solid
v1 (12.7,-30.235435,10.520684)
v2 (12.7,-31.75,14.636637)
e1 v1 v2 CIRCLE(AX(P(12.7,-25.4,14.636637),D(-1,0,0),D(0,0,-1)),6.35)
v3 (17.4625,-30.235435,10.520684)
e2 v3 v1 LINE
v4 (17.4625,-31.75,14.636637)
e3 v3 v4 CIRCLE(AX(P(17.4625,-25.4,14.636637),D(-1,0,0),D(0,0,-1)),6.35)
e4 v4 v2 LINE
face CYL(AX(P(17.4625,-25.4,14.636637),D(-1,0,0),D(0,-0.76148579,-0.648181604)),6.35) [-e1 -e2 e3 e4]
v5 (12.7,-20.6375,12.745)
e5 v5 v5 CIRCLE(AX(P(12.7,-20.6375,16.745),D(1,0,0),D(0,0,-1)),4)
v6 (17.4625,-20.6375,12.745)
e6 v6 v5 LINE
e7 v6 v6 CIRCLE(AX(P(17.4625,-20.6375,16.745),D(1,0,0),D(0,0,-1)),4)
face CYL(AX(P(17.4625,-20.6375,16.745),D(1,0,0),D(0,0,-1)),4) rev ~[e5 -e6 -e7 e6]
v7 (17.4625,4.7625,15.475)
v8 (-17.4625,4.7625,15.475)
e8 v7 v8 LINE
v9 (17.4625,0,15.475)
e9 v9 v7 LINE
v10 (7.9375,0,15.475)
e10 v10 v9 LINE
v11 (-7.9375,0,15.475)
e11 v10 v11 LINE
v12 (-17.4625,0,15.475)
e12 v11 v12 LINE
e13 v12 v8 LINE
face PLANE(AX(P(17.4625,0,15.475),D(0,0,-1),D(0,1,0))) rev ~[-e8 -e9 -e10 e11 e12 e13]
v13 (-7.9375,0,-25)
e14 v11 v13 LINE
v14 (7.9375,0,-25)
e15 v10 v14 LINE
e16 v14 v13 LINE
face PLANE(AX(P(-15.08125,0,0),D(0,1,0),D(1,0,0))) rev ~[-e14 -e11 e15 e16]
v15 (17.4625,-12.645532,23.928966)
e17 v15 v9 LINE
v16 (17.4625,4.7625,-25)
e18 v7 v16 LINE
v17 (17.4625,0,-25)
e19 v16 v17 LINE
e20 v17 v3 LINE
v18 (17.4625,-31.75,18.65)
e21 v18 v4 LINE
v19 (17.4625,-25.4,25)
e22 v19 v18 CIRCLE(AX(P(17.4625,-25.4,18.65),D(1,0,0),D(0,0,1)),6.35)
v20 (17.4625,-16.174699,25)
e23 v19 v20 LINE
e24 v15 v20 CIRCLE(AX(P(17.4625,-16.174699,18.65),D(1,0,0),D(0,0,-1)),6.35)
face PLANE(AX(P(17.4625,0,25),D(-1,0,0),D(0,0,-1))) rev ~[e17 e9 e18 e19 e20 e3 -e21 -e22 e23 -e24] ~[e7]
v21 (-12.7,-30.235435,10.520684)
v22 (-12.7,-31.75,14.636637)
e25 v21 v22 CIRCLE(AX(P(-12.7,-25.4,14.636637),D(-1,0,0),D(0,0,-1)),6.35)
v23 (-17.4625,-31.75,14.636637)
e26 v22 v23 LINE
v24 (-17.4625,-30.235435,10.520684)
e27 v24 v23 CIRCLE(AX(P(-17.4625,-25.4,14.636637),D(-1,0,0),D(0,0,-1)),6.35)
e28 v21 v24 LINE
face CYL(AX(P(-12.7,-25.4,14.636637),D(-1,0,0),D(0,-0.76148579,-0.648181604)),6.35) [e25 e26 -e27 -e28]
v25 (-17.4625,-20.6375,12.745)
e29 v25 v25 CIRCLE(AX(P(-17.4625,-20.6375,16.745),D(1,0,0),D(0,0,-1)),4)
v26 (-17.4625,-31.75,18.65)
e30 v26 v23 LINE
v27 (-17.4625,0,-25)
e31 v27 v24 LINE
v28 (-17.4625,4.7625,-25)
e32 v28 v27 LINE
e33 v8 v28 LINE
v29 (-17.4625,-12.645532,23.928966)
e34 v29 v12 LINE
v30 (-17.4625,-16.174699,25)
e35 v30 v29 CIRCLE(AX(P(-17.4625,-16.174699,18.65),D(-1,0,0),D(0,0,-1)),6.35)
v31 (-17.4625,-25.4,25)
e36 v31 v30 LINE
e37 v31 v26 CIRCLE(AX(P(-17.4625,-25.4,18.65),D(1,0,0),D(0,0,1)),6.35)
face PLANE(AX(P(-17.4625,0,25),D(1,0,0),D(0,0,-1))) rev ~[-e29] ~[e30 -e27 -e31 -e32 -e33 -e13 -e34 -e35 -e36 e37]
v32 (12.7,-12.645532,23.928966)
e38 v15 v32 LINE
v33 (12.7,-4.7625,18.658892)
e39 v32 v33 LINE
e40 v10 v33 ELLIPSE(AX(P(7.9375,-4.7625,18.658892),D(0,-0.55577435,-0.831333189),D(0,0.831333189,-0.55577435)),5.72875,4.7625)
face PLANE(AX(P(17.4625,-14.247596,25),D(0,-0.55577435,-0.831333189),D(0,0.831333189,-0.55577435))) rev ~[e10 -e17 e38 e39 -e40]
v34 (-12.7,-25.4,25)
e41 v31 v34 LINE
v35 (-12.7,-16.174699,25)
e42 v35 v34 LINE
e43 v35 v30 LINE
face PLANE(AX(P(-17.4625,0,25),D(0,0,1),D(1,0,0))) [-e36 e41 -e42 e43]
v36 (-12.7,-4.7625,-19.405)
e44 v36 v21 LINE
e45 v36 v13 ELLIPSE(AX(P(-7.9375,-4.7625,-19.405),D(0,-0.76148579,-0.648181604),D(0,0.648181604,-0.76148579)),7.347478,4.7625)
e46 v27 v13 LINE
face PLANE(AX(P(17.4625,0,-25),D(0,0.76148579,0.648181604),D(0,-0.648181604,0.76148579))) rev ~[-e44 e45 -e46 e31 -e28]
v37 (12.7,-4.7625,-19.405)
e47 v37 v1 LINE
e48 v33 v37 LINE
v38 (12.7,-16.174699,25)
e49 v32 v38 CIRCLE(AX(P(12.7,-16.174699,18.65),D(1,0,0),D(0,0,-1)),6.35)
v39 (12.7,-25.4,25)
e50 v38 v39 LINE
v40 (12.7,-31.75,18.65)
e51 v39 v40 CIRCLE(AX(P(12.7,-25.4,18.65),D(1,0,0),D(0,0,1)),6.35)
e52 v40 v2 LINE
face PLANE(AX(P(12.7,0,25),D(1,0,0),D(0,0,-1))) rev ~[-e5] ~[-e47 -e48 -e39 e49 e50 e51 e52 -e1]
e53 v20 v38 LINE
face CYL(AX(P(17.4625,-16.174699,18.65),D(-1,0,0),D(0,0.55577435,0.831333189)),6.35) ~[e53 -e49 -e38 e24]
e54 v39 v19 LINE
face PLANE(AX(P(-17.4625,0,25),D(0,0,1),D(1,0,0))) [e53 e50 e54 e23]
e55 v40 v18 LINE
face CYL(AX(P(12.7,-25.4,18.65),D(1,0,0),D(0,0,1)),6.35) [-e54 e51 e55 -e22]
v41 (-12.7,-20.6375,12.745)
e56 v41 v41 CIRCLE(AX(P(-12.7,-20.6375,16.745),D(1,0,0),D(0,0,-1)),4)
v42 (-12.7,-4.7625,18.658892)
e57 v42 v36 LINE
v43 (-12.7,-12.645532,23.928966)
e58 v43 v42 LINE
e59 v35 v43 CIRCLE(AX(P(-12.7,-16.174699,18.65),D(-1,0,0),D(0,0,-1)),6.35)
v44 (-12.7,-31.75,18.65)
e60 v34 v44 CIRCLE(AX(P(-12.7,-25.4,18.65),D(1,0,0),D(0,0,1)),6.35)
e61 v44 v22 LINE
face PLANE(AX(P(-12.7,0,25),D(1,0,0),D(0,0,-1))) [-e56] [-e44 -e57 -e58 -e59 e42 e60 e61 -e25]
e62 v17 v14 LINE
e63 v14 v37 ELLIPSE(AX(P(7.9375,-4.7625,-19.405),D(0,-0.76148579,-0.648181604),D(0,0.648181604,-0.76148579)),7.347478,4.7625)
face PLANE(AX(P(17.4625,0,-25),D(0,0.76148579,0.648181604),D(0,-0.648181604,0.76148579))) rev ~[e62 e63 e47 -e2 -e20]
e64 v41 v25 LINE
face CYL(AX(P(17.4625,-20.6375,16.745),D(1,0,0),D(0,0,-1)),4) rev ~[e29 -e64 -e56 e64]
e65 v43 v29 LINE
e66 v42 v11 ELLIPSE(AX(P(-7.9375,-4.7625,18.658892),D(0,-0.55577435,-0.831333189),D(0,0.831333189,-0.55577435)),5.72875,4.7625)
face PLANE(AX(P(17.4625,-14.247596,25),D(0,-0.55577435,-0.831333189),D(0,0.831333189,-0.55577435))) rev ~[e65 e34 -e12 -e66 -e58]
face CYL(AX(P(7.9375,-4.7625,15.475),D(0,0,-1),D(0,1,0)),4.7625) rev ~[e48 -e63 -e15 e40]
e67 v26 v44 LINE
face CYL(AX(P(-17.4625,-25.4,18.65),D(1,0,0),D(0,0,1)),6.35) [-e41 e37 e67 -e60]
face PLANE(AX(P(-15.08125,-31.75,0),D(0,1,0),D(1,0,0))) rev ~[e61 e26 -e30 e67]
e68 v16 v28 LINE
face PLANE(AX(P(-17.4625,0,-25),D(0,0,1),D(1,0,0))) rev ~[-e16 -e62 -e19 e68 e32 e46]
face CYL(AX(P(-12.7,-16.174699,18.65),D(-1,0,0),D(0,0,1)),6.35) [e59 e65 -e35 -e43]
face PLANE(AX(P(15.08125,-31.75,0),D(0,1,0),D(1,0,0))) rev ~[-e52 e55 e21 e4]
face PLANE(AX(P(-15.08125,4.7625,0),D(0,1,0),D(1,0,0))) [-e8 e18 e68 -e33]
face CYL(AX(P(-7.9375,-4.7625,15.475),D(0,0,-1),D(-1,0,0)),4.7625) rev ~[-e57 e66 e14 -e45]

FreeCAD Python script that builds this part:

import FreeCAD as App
import Part
import Sketcher
from FreeCAD import Vector
Q = App.Units.Quantity


def edges_at(feature, points):
    """Names of the edges that pass closest to the given points."""
    edges = feature.Shape.Edges
    near = lambda p: min(range(len(edges)), key=lambda i: edges[i].distToShape(Part.Vertex(*p))[0])
    return sorted({f"Edge{near(p) + 1}" for p in points})

doc = App.newDocument("Part")
body = doc.addObject("PartDesign::Body", "Body")

sketch1 = body.newObject("Sketcher::SketchObject", "Sketch")
sketch1.AttachmentSupport = (doc.getObject("XZ_Plane"), [""])
sketch1.MapMode = "FlatFace"
sketch1.addGeometry([
    Part.LineSegment(Vector(-17.4625, -25, 0), Vector(-17.4625, 25, 0)),
    Part.LineSegment(Vector(-17.4625, 25, 0), Vector(17.4625, 25, 0)),
    Part.LineSegment(Vector(17.4625, 25, 0), Vector(17.4625, -25, 0)),
    Part.LineSegment(Vector(17.4625, -25, 0), Vector(-17.4625, -25, 0)),
], False)
sketch1.addConstraint([
    Sketcher.Constraint("Coincident", 0, 2, 1, 1),
    Sketcher.Constraint("Coincident", 1, 2, 2, 1),
    Sketcher.Constraint("Coincident", 2, 2, 3, 1),
    Sketcher.Constraint("Coincident", 3, 2, 0, 1),
    Sketcher.Constraint("Vertical", 0),
    Sketcher.Constraint("Horizontal", 1),
    Sketcher.Constraint("Vertical", 2),
    Sketcher.Constraint("Horizontal", 3),
    Sketcher.Constraint("Symmetric", 0, 2, 2, 2, -1, 1),
    Sketcher.Constraint("DistanceX", 1, 1, 1, 2, Q("1.375 in")),
    Sketcher.Constraint("DistanceY", 0, 1, 0, 2, 50.0),
])
pad1 = body.newObject("PartDesign::Pad", "Pad")
pad1.Profile = sketch1
pad1.Length = Q("0.1875 in")
pad1.Reversed = True

sketch2 = body.newObject("Sketcher::SketchObject", "Sketch001")
sketch2.AttachmentSupport = (doc.getObject("XZ_Plane"), [""])
sketch2.MapMode = "FlatFace"
sketch2.addGeometry([
    Part.LineSegment(Vector(-17.4625, -25, 0), Vector(-17.4625, 25, 0)),
    Part.LineSegment(Vector(-17.4625, 25, 0), Vector(-12.7, 25, 0)),
    Part.LineSegment(Vector(-12.7, 25, 0), Vector(-12.7, -25, 0)),
    Part.LineSegment(Vector(-12.7, -25, 0), Vector(-17.4625, -25, 0)),
    Part.LineSegment(Vector(12.7, -25, 0), Vector(12.7, 25, 0)),
    Part.LineSegment(Vector(12.7, 25, 0), Vector(17.4625, 25, 0)),
    Part.LineSegment(Vector(17.4625, 25, 0), Vector(17.4625, -25, 0)),
    Part.LineSegment(Vector(17.4625, -25, 0), Vector(12.7, -25, 0)),
], False)
sketch2.addConstraint([
    Sketcher.Constraint("Coincident", 0, 2, 1, 1),
    Sketcher.Constraint("Coincident", 1, 2, 2, 1),
    Sketcher.Constraint("Coincident", 2, 2, 3, 1),
    Sketcher.Constraint("Coincident", 3, 2, 0, 1),
    Sketcher.Constraint("Coincident", 4, 2, 5, 1),
    Sketcher.Constraint("Coincident", 5, 2, 6, 1),
    Sketcher.Constraint("Coincident", 6, 2, 7, 1),
    Sketcher.Constraint("Coincident", 7, 2, 4, 1),
    Sketcher.Constraint("Vertical", 0),
    Sketcher.Constraint("Horizontal", 1),
    Sketcher.Constraint("Vertical", 2),
    Sketcher.Constraint("Horizontal", 3),
    Sketcher.Constraint("Vertical", 4),
    Sketcher.Constraint("Horizontal", 5),
    Sketcher.Constraint("Vertical", 6),
    Sketcher.Constraint("Horizontal", 7),
    Sketcher.Constraint("Symmetric", 2, 2, 4, 2, -1, 1),
    Sketcher.Constraint("Symmetric", 0, 2, 6, 2, -1, 1),
    Sketcher.Constraint("Horizontal", 1, 2, 4, 2),
    Sketcher.Constraint("DistanceX", 1, 2, 4, 2, Q("1 in")),
    Sketcher.Constraint("DistanceX", 1, 1, 1, 2, Q("0.1875 in")),
    Sketcher.Constraint("DistanceY", 0, 1, 0, 2, 50.0),
])
pad2 = body.newObject("PartDesign::Pad", "Pad001")
pad2.Profile = sketch2
pad2.Length = Q("1.25 in")

sketch3 = body.newObject("Sketcher::SketchObject", "Sketch002")
sketch3.AttachmentSupport = (doc.getObject("YZ_Plane"), [""])
sketch3.MapMode = "FlatFace"
sketch3.AttachmentOffset = App.Placement(Vector(0, 0, 0.6875 * 25.4), App.Rotation())
sketch3.addGeometry([
    Part.LineSegment(Vector(-31.75, -25, 0), Vector(0, -25, 0)),
    Part.LineSegment(Vector(0, -25, 0), Vector(-31.75, 12.3, 0)),
    Part.LineSegment(Vector(-31.75, 12.3, 0), Vector(-31.75, -25, 0)),
    Part.LineSegment(Vector(0, 15.475, 0), Vector(4.7625, 15.475, 0)),
    Part.LineSegment(Vector(4.7625, 15.475, 0), Vector(4.7625, 25, 0)),
    Part.LineSegment(Vector(4.7625, 25, 0), Vector(-14.247596, 25, 0)),
    Part.LineSegment(Vector(-14.247596, 25, 0), Vector(0, 15.475, 0)),
    Part.Circle(Vector(-20.6375, 16.745, 0), Vector(0, 0, 1), 4),
], False)
sketch3.addConstraint([
    Sketcher.Constraint("Coincident", 0, 2, 1, 1),
    Sketcher.Constraint("Coincident", 1, 2, 2, 1),
    Sketcher.Constraint("Coincident", 2, 2, 0, 1),
    Sketcher.Constraint("Coincident", 3, 2, 4, 1),
    Sketcher.Constraint("Coincident", 4, 2, 5, 1),
    Sketcher.Constraint("Coincident", 5, 2, 6, 1),
    Sketcher.Constraint("Coincident", 6, 2, 3, 1),
    Sketcher.Constraint("Horizontal", 0),
    Sketcher.Constraint("Vertical", 2),
    Sketcher.Constraint("Horizontal", 3),
    Sketcher.Constraint("Vertical", 4),
    Sketcher.Constraint("Horizontal", 5),
    Sketcher.Constraint("PointOnObject", 0, 2, -2),
    Sketcher.Constraint("PointOnObject", 6, 2, -2),
    Sketcher.Constraint("DistanceX", 7, 3, 3, 2, Q("1 in")),
    Sketcher.Constraint("DistanceX", 0, 1, 0, 2, Q("1.25 in")),
    Sketcher.Constraint("DistanceY", 1, 2, 4, 2, Q("0.5 in")),
    Sketcher.Constraint("Diameter", 7, 8.0),
    Sketcher.Constraint("DistanceX", 3, 1, 3, 2, Q("0.1875 in")),
    Sketcher.Constraint("DistanceY", 4, 1, 4, 2, Q("0.375 in")),
    Sketcher.Constraint("DistanceY", 3, 2, 7, 3, Q("0.05 in")),
    Sketcher.Constraint("DistanceY", 2, 2, 2, 1, 37.3),
    Sketcher.Constraint("DistanceY", -1, 1, 7, 3, 16.745),
    Sketcher.Constraint("Distance", 6, 17.13825),
])
pocket1 = body.newObject("PartDesign::Pocket", "Pocket")
pocket1.Profile = sketch3
pocket1.Type = "ThroughAll"
doc.recompute()

fillet = body.newObject("PartDesign::Fillet", "Fillet")
fillet.Base = (pocket1, edges_at(pocket1, [
    (-15.081, -31.75, 25),
    (15.081, -31.75, 25),
    (15.081, -31.75, 12.3),
    (-15.081, -31.75, 12.3),
    (15.081, -14.248, 25),
    (-15.081, -14.248, 25),
]))
fillet.Radius = Q("0.25 in")
doc.recompute()

fillet2 = body.newObject("PartDesign::Fillet", "Fillet001")
fillet2.Base = (fillet, edges_at(fillet, [(12.7, 0, -4.763), (-12.7, 0, -4.763)]))
fillet2.Radius = Q("0.1875 in")

doc.recompute()
